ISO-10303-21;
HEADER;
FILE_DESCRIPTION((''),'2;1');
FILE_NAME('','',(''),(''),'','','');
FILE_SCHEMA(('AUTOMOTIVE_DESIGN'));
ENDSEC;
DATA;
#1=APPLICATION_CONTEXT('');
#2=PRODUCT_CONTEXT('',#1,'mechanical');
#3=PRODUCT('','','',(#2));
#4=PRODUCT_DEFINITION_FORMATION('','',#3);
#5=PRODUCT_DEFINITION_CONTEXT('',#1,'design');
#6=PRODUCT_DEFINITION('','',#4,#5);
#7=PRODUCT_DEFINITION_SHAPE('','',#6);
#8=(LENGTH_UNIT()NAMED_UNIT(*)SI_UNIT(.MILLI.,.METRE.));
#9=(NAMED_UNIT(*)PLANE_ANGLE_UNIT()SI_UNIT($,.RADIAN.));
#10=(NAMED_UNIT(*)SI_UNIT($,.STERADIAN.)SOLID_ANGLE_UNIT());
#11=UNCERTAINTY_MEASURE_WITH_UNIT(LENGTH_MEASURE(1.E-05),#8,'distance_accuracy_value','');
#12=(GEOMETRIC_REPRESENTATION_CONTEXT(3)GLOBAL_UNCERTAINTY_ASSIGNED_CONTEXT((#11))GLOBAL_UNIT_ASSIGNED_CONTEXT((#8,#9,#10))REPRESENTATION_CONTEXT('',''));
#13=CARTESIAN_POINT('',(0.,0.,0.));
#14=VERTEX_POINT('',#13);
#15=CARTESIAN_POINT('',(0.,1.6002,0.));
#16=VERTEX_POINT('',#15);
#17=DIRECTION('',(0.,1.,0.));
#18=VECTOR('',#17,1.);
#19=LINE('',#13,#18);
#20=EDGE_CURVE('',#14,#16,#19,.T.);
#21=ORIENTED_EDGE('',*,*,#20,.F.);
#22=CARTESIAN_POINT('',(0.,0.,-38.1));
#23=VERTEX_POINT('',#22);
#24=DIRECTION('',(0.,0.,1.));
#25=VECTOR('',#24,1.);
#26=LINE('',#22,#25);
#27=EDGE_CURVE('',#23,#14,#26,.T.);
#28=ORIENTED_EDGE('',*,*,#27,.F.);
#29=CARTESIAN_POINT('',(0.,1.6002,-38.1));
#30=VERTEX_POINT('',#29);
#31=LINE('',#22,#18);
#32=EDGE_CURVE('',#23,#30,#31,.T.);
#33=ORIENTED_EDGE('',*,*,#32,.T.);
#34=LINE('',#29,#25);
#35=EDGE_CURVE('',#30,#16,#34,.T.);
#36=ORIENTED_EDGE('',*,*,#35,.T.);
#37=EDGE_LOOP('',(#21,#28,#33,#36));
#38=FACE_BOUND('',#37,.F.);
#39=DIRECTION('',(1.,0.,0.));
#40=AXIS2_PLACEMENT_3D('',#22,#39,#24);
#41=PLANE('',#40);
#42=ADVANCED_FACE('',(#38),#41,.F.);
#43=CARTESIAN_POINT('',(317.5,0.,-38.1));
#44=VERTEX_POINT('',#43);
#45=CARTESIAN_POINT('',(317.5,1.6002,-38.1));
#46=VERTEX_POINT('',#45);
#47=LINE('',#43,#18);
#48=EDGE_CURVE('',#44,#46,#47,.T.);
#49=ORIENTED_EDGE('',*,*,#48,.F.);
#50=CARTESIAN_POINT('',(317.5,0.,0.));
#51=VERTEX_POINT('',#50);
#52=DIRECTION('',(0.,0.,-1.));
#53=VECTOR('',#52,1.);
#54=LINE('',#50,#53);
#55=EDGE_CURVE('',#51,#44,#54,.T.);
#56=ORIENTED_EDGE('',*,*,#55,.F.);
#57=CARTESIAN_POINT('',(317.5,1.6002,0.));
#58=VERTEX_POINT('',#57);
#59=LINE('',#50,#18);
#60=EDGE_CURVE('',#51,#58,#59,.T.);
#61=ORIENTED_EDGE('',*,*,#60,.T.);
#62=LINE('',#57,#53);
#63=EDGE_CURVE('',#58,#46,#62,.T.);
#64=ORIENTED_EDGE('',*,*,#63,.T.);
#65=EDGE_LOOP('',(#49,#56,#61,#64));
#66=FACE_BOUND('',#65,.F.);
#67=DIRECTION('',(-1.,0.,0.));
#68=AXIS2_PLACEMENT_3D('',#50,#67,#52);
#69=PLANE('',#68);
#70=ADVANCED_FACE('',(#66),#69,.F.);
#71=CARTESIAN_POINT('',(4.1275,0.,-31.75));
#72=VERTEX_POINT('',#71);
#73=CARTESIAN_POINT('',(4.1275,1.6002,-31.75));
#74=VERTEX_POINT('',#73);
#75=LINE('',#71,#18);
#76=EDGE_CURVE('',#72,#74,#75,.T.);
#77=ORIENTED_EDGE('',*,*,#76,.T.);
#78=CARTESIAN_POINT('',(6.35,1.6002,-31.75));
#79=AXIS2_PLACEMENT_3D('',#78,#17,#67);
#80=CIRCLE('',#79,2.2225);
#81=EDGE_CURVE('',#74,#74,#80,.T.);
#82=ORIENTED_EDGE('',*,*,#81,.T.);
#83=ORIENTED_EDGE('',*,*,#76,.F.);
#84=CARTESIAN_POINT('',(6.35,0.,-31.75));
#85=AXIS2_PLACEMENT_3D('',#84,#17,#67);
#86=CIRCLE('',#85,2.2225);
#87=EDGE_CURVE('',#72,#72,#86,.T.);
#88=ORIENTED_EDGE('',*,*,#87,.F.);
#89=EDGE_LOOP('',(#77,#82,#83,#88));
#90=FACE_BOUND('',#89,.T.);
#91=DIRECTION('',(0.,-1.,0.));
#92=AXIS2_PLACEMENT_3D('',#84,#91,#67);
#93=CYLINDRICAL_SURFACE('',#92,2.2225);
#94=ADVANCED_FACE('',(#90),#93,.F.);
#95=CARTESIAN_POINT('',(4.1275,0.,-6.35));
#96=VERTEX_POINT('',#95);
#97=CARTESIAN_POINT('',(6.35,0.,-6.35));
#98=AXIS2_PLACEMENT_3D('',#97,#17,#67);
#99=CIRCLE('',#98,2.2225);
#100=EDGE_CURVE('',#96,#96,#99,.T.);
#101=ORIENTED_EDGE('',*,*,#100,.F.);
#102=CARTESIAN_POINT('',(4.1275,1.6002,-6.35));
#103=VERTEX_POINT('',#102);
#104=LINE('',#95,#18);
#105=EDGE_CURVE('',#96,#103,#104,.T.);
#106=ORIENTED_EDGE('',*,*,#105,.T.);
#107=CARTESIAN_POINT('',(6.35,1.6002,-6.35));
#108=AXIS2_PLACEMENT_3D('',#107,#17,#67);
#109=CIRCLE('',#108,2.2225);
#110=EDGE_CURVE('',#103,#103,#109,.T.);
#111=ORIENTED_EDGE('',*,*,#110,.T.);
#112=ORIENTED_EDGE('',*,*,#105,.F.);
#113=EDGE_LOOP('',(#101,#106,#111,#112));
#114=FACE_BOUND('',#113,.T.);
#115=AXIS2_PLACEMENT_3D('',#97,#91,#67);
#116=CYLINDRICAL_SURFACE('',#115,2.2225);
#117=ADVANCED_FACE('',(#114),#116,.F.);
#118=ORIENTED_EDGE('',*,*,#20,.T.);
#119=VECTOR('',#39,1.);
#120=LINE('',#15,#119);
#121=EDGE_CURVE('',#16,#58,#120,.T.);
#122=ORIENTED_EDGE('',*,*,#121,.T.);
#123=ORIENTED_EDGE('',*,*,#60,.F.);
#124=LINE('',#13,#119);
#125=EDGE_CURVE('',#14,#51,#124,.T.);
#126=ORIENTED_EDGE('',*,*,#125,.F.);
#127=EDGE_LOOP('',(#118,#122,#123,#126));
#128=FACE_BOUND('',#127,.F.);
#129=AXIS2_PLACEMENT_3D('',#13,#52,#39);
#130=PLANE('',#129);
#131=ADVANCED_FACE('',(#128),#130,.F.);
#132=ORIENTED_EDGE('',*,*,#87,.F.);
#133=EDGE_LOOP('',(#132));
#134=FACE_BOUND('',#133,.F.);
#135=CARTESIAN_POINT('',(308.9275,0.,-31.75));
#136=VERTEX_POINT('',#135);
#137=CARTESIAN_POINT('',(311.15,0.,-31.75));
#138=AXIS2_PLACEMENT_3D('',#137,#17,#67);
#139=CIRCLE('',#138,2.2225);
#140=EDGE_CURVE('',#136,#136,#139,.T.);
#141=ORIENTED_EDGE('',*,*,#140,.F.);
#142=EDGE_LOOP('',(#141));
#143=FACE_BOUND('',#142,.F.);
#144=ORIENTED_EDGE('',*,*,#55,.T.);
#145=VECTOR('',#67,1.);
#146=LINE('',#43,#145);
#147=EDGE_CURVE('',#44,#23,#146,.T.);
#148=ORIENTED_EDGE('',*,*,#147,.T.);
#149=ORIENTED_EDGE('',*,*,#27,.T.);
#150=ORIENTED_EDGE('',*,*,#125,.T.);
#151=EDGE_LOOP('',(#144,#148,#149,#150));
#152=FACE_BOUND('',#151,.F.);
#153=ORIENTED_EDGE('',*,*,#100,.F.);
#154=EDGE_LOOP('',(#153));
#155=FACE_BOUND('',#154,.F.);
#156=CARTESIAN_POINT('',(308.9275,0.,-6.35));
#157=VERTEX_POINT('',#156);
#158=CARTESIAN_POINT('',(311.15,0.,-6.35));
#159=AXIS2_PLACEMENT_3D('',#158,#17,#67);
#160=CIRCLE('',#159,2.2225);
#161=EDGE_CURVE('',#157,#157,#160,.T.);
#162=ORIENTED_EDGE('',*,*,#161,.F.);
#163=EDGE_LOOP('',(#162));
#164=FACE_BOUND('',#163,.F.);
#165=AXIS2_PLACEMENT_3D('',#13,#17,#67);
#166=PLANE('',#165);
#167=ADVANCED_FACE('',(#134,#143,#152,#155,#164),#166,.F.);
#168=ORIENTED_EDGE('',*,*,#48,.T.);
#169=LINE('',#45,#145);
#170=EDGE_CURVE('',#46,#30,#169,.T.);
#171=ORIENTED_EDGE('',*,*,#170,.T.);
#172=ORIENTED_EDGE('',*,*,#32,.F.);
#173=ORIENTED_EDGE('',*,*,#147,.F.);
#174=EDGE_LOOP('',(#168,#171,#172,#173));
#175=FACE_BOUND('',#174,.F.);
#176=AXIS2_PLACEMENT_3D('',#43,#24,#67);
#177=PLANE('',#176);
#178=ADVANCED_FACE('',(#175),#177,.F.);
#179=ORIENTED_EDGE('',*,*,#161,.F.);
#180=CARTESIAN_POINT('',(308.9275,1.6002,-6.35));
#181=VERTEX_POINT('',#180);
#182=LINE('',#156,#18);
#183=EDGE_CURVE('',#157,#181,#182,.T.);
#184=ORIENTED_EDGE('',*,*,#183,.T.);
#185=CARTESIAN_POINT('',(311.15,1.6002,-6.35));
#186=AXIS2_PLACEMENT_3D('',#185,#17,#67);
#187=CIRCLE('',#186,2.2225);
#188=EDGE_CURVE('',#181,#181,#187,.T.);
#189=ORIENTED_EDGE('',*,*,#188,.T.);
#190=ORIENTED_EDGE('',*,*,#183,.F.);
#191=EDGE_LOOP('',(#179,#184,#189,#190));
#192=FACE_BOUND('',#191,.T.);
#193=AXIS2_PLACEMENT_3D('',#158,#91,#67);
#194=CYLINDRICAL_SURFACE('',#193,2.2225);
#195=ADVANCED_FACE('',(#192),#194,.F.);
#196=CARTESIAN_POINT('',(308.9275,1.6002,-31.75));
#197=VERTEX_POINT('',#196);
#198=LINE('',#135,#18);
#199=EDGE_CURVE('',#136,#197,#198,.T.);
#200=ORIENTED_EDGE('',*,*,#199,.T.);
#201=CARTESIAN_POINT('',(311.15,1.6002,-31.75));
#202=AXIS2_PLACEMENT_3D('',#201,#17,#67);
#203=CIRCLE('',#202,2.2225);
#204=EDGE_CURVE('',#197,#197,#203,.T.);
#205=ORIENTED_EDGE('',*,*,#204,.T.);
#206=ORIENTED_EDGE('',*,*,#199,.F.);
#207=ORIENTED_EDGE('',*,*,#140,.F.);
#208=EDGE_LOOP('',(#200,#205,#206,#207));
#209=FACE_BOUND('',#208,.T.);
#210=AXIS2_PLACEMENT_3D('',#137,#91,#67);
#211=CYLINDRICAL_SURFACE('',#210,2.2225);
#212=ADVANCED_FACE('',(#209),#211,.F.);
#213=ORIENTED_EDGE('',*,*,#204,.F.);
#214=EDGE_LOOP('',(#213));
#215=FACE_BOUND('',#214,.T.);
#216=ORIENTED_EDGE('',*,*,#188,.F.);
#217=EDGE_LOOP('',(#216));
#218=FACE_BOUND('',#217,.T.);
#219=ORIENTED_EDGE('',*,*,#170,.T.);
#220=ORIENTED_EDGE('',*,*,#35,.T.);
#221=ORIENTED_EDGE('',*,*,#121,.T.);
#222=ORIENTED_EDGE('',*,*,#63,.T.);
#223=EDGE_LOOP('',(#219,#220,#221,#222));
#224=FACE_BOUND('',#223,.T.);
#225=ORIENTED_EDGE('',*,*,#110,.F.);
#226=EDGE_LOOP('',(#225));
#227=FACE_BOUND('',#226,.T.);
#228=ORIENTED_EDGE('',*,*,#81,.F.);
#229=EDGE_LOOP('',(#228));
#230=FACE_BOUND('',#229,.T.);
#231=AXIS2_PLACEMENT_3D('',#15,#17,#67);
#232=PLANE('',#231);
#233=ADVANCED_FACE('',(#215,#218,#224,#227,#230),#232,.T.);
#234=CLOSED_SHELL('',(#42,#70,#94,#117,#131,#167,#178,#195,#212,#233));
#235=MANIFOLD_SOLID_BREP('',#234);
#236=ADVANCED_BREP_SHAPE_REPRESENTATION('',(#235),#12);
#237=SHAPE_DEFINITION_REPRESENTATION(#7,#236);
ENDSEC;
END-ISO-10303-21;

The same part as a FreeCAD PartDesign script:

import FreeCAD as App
import Part
import Sketcher
from FreeCAD import Vector
Q = App.Units.Quantity


def add_polygon(sketch, points):
    """Adds a closed chain of lines whose ends are joined by coincident constraints."""
    first, n = sketch.GeometryCount, len(points)
    for a, b in zip(points, points[1:] + points[:1]):
        sketch.addGeometry(Part.LineSegment(App.Vector(*a, 0), App.Vector(*b, 0)), False)
    for i in range(n):
        sketch.addConstraint(Sketcher.Constraint("Coincident", first + i, 2, first + (i + 1) % n, 1))

doc = App.newDocument("Part")
params = doc.addObject("Spreadsheet::Sheet", "Params")
for row, (alias, value) in enumerate([
    ("sketch1_diameter", "0.175 in"),
    ("sketch1_width", "12.5 in"),
    ("sketch1_height", "1.5 in"),
    ("pad1_length", "0.063 in"),
], start=1):
    params.set(f"A{row}", alias)
    params.set(f"B{row}", "=" + value)
    params.setAlias(f"B{row}", alias)

body = doc.addObject("PartDesign::Body", "Body")

sketch1 = body.newObject("Sketcher::SketchObject", "Sketch")
sketch1.AttachmentSupport = (doc.getObject("XZ_Plane"), [""])
sketch1.MapMode = "FlatFace"
add_polygon(sketch1, [(0, -38.1), (0, 0), (317.5, 0), (317.5, -38.1)])
sketch1.addGeometry(Part.Circle(Vector(311.1, -31.8, 0), Vector(0, 0, 1), 2.2), False)
sketch1.addGeometry(Part.Circle(Vector(6.3, -31.8, 0), Vector(0, 0, 1), 2.2), False)
sketch1.addGeometry(Part.Circle(Vector(311.1, -6.3, 0), Vector(0, 0, 1), 2.2), False)
sketch1.addGeometry(Part.Circle(Vector(6.3, -6.3, 0), Vector(0, 0, 1), 2.2), False)
sketch1.addConstraint(Sketcher.Constraint("Vertical", 0))
sketch1.addConstraint(Sketcher.Constraint("Horizontal", 1))
sketch1.addConstraint(Sketcher.Constraint("Vertical", 2))
sketch1.addConstraint(Sketcher.Constraint("Horizontal", 3))
sketch1.addConstraint(Sketcher.Constraint("Coincident", 0, 2, -1, 1))
sketch1.addConstraint(Sketcher.Constraint("Equal", 4, 5))
sketch1.addConstraint(Sketcher.Constraint("Equal", 5, 6))
sketch1.addConstraint(Sketcher.Constraint("Equal", 6, 7))
sketch1.addConstraint(Sketcher.Constraint("Horizontal", 4, 3, 5, 3))
sketch1.addConstraint(Sketcher.Constraint("Horizontal", 6, 3, 7, 3))
sketch1.addConstraint(Sketcher.Constraint("Vertical", 4, 3, 6, 3))
sketch1.addConstraint(Sketcher.Constraint("Vertical", 5, 3, 7, 3))
sketch1.addConstraint(Sketcher.Constraint("Diameter", 4, Q("0.175 in")))
sketch1.addConstraint(Sketcher.Constraint("DistanceX", 1, 1, 1, 2, Q("12.5 in")))
sketch1.addConstraint(Sketcher.Constraint("DistanceY", 0, 1, 0, 2, Q("1.5 in")))
sketch1.addConstraint(Sketcher.Constraint("DistanceX", 5, 3, 4, 3, Q("12 in")))
sketch1.addConstraint(Sketcher.Constraint("DistanceY", 4, 3, 6, 3, Q("1 in")))
sketch1.addConstraint(Sketcher.Constraint("DistanceX", -1, 1, 4, 3, Q("12.25 in")))
sketch1.addConstraint(Sketcher.Constraint("DistanceY", 4, 3, -1, 1, Q("1.25 in")))
sketch1.setExpression("Constraints[16]", "Params.sketch1_diameter")
sketch1.setExpression("Constraints[17]", "Params.sketch1_width")
sketch1.setExpression("Constraints[18]", "Params.sketch1_height")
pad1 = body.newObject("PartDesign::Pad", "Pad")
pad1.Profile = sketch1
pad1.setExpression("Length", "Params.pad1_length")
pad1.Reversed = True

doc.recompute()
